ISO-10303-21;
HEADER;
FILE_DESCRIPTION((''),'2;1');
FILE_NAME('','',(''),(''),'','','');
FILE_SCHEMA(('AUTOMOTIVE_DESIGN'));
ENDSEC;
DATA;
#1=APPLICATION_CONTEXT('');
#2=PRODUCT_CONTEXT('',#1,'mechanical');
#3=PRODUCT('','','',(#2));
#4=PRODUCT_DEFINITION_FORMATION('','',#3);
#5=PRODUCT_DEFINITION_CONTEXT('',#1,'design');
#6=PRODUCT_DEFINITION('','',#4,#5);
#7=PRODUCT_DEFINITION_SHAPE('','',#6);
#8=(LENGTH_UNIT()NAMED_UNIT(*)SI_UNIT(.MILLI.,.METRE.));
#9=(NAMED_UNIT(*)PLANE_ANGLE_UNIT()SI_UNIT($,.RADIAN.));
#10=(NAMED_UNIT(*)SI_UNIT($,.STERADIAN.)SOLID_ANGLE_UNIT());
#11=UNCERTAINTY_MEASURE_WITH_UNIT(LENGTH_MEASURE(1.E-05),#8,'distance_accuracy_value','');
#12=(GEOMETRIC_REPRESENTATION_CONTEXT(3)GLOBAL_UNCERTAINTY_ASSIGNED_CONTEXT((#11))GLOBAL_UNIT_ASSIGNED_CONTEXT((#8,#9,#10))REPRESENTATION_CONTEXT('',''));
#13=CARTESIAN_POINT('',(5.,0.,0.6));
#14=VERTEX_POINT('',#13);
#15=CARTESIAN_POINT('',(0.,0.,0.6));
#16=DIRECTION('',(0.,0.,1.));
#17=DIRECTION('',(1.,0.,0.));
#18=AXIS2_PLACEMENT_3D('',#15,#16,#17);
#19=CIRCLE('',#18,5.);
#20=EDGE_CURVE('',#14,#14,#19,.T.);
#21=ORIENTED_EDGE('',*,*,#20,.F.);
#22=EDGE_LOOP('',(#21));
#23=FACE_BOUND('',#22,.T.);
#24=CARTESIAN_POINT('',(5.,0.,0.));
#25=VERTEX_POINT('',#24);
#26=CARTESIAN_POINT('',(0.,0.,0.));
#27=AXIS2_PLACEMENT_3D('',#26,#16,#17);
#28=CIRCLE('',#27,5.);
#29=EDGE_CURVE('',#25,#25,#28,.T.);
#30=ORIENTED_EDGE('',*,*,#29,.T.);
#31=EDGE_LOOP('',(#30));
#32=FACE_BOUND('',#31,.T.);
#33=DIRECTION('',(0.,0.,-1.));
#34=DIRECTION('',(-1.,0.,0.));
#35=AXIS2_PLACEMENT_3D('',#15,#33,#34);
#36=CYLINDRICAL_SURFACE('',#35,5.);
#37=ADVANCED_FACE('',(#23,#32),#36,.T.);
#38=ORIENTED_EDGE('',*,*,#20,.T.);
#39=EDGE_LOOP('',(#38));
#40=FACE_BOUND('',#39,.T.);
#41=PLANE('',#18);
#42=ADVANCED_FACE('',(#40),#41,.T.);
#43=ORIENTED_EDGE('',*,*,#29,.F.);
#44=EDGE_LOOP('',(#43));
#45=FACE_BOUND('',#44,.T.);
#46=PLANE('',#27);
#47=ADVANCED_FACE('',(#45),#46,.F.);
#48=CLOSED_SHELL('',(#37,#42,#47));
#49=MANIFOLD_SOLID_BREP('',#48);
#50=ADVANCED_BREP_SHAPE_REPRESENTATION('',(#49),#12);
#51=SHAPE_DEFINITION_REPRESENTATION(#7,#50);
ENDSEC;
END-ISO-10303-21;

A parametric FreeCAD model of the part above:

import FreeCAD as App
import Part
import Sketcher
from FreeCAD import Vector

doc = App.newDocument("Part")
body = doc.addObject("PartDesign::Body", "Body")

# Sketch on XY plane
sketch1 = body.newObject("Sketcher::SketchObject", "Sketch")
sketch1.AttachmentSupport = (doc.getObject("XY_Plane"), [""])
sketch1.MapMode = "FlatFace"
sketch1.addGeometry(Part.Circle(Vector(0, 0, 0), Vector(0, 0, 1), 5), False)
sketch1.addConstraint(Sketcher.Constraint("Coincident", 0, 3, -1, 1))
sketch1.addConstraint(Sketcher.Constraint("Diameter", 0, 10.0))
pad1 = body.newObject("PartDesign::Pad", "Pad")
pad1.Profile = sketch1
pad1.Length = 0.6

doc.recompute()
